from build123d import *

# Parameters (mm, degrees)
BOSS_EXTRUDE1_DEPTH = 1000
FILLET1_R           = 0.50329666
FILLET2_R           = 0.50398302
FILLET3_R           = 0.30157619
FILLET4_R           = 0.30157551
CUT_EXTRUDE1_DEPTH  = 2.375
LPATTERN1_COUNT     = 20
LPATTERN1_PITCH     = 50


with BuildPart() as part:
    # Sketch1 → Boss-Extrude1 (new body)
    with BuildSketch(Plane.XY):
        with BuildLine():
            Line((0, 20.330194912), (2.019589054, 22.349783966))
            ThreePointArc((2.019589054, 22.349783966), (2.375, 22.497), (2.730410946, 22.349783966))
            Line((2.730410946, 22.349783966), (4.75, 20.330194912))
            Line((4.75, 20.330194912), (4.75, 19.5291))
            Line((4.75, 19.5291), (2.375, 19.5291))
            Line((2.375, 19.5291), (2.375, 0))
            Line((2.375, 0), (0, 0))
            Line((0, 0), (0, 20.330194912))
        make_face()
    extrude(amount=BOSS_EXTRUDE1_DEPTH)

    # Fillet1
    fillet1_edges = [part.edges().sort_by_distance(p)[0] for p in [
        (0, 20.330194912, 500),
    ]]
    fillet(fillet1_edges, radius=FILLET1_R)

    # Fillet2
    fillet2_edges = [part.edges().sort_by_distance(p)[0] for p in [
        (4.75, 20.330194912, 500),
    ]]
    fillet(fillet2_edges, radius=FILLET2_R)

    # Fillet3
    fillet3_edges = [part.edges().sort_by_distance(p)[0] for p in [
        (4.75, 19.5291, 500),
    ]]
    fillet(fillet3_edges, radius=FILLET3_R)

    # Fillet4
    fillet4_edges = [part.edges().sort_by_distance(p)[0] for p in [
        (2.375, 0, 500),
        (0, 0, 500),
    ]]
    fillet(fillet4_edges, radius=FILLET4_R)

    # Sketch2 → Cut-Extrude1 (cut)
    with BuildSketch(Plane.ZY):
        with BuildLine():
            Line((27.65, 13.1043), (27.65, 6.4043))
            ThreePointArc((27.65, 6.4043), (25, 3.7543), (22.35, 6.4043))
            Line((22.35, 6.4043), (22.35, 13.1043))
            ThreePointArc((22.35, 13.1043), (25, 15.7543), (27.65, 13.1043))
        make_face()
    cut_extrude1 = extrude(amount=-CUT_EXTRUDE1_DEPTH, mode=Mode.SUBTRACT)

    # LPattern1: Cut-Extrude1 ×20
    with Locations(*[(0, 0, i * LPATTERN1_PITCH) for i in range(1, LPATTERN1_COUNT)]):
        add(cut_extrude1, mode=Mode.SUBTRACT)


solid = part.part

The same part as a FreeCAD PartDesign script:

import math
import FreeCAD as App
import Part
import Sketcher
from FreeCAD import Vector
Q = App.Units.Quantity


def edges_at(feature, points):
    """Names of the edges that pass closest to the given points."""
    edges = feature.Shape.Edges
    near = lambda p: min(range(len(edges)), key=lambda i: edges[i].distToShape(Part.Vertex(*p))[0])
    return sorted({f"Edge{near(p) + 1}" for p in points})

doc = App.newDocument("Part")
body = doc.addObject("PartDesign::Body", "Body")

sketch1 = body.newObject("Sketcher::SketchObject", "Sketch")
sketch1.AttachmentSupport = (doc.getObject("XY_Plane"), [""])
sketch1.MapMode = "FlatFace"
sketch1.addGeometry(Part.LineSegment(Vector(2.019589, 22.349784, 0), Vector(0, 20.330195, 0)), False)
sketch1.addGeometry(Part.LineSegment(Vector(0, 20.330195, 0), Vector(0, 0, 0)), False)
sketch1.addGeometry(Part.LineSegment(Vector(0, 0, 0), Vector(2.375, 0, 0)), False)
sketch1.addGeometry(Part.LineSegment(Vector(2.375, 0, 0), Vector(2.375, 19.5291, 0)), False)
sketch1.addGeometry(Part.LineSegment(Vector(2.375, 19.5291, 0), Vector(4.75, 19.5291, 0)), False)
sketch1.addGeometry(Part.LineSegment(Vector(4.75, 19.5291, 0), Vector(4.75, 20.330195, 0)), False)
sketch1.addGeometry(Part.LineSegment(Vector(4.75, 20.330195, 0), Vector(2.730411, 22.349784, 0)), False)
sketch1.addGeometry(Part.ArcOfCircle(Part.Circle(Vector(2.375, 21.994373, 0), Vector(0, 0, 1), 0.502627), math.radians(45), math.radians(135)), False)
sketch1.addConstraint(Sketcher.Constraint("Coincident", 0, 2, 1, 1))
sketch1.addConstraint(Sketcher.Constraint("Coincident", 1, 2, 2, 1))
sketch1.addConstraint(Sketcher.Constraint("Coincident", 2, 2, 3, 1))
sketch1.addConstraint(Sketcher.Constraint("Coincident", 3, 2, 4, 1))
sketch1.addConstraint(Sketcher.Constraint("Coincident", 4, 2, 5, 1))
sketch1.addConstraint(Sketcher.Constraint("Coincident", 5, 2, 6, 1))
sketch1.addConstraint(Sketcher.Constraint("Tangent", 6, 2, 7, 1))
sketch1.addConstraint(Sketcher.Constraint("Tangent", 7, 2, 0, 1))
sketch1.addConstraint(Sketcher.Constraint("Vertical", 1))
sketch1.addConstraint(Sketcher.Constraint("Horizontal", 2))
sketch1.addConstraint(Sketcher.Constraint("Vertical", 3))
sketch1.addConstraint(Sketcher.Constraint("Horizontal", 4))
sketch1.addConstraint(Sketcher.Constraint("Vertical", 5))
sketch1.addConstraint(Sketcher.Constraint("Coincident", 1, 2, -1, 1))
sketch1.addConstraint(Sketcher.Constraint("Perpendicular", 0, 6))
sketch1.addConstraint(Sketcher.Constraint("Horizontal", 0, 2, 5, 2))
sketch1.addConstraint(Sketcher.Constraint("Horizontal", 6, 2, 7, 2))
sketch1.addConstraint(Sketcher.Constraint("Vertical", 7, 3, 2, 2))
sketch1.addConstraint(Sketcher.Constraint("DistanceX", 2, 1, 2, 2, Q("2.375 mm")))
sketch1.addConstraint(Sketcher.Constraint("DistanceY", 3, 1, 3, 2, Q("19.5291 mm")))
sketch1.addConstraint(Sketcher.Constraint("Radius", 7, Q("0.502627 mm")))
sketch1.addConstraint(Sketcher.Constraint("DistanceY", 1, 2, 1, 1, Q("20.330195 mm")))
pad1 = body.newObject("PartDesign::Pad", "Pad")
pad1.Profile = sketch1
pad1.Length = 1000
doc.recompute()

fillet = body.newObject("PartDesign::Fillet", "Fillet")
fillet.Base = (pad1, edges_at(pad1, [(0, 20.33, 500)]))
fillet.Radius = 0.503297
doc.recompute()

fillet2 = body.newObject("PartDesign::Fillet", "Fillet001")
fillet2.Base = (fillet, edges_at(fillet, [(4.75, 20.33, 500)]))
fillet2.Radius = 0.503983
doc.recompute()

fillet3 = body.newObject("PartDesign::Fillet", "Fillet002")
fillet3.Base = (fillet2, edges_at(fillet2, [(4.75, 19.529, 500)]))
fillet3.Radius = 0.301576
doc.recompute()

fillet4 = body.newObject("PartDesign::Fillet", "Fillet003")
fillet4.Base = (fillet3, edges_at(fillet3, [(2.375, 0, 500), (0, 0, 500)]))
fillet4.Radius = 0.301576

sketch2 = body.newObject("Sketcher::SketchObject", "Sketch001")
sketch2.AttachmentSupport = (doc.getObject("YZ_Plane"), [""])
sketch2.MapMode = "FlatFace"
sketch2.addGeometry(Part.LineSegment(Vector(6.4043, 27.65, 0), Vector(13.1043, 27.65, 0)), False)
sketch2.addGeometry(Part.ArcOfCircle(Part.Circle(Vector(13.1043, 25, 0), Vector(0, 0, 1), 2.65), math.radians(-90), math.radians(90)), False)
sketch2.addGeometry(Part.LineSegment(Vector(13.1043, 22.35, 0), Vector(6.4043, 22.35, 0)), False)
sketch2.addGeometry(Part.ArcOfCircle(Part.Circle(Vector(6.4043, 25, 0), Vector(0, 0, 1), 2.65), math.radians(90), math.radians(270)), False)
sketch2.addConstraint(Sketcher.Constraint("Tangent", 0, 2, 1, 2))
sketch2.addConstraint(Sketcher.Constraint("Tangent", 1, 1, 2, 1))
sketch2.addConstraint(Sketcher.Constraint("Tangent", 2, 2, 3, 2))
sketch2.addConstraint(Sketcher.Constraint("Tangent", 3, 1, 0, 1))
sketch2.addConstraint(Sketcher.Constraint("Horizontal", 0))
sketch2.addConstraint(Sketcher.Constraint("Horizontal", 2))
sketch2.addConstraint(Sketcher.Constraint("Radius", 1, Q("2.65 mm")))
sketch2.addConstraint(Sketcher.Constraint("DistanceX", 0, 1, 0, 2, Q("6.7 mm")))
sketch2.addConstraint(Sketcher.Constraint("DistanceY", -1, 1, 1, 3, Q("25 mm")))
sketch2.addConstraint(Sketcher.Constraint("DistanceX", -1, 1, 1, 3, Q("13.1043 mm")))
pocket1 = body.newObject("PartDesign::Pocket", "Pocket")
pocket1.Profile = sketch2
pocket1.Length = 2.375
pocket1.Reversed = True
doc.recompute()

linearpattern = body.newObject("PartDesign::LinearPattern", "LinearPattern")
linearpattern.Originals = [pocket1]
linearpattern.Direction = (doc.getObject("Z_Axis"), [""])
linearpattern.Mode = "offset"
linearpattern.Offset = 50
linearpattern.Occurrences = 20
body.Tip = linearpattern

doc.recompute()
